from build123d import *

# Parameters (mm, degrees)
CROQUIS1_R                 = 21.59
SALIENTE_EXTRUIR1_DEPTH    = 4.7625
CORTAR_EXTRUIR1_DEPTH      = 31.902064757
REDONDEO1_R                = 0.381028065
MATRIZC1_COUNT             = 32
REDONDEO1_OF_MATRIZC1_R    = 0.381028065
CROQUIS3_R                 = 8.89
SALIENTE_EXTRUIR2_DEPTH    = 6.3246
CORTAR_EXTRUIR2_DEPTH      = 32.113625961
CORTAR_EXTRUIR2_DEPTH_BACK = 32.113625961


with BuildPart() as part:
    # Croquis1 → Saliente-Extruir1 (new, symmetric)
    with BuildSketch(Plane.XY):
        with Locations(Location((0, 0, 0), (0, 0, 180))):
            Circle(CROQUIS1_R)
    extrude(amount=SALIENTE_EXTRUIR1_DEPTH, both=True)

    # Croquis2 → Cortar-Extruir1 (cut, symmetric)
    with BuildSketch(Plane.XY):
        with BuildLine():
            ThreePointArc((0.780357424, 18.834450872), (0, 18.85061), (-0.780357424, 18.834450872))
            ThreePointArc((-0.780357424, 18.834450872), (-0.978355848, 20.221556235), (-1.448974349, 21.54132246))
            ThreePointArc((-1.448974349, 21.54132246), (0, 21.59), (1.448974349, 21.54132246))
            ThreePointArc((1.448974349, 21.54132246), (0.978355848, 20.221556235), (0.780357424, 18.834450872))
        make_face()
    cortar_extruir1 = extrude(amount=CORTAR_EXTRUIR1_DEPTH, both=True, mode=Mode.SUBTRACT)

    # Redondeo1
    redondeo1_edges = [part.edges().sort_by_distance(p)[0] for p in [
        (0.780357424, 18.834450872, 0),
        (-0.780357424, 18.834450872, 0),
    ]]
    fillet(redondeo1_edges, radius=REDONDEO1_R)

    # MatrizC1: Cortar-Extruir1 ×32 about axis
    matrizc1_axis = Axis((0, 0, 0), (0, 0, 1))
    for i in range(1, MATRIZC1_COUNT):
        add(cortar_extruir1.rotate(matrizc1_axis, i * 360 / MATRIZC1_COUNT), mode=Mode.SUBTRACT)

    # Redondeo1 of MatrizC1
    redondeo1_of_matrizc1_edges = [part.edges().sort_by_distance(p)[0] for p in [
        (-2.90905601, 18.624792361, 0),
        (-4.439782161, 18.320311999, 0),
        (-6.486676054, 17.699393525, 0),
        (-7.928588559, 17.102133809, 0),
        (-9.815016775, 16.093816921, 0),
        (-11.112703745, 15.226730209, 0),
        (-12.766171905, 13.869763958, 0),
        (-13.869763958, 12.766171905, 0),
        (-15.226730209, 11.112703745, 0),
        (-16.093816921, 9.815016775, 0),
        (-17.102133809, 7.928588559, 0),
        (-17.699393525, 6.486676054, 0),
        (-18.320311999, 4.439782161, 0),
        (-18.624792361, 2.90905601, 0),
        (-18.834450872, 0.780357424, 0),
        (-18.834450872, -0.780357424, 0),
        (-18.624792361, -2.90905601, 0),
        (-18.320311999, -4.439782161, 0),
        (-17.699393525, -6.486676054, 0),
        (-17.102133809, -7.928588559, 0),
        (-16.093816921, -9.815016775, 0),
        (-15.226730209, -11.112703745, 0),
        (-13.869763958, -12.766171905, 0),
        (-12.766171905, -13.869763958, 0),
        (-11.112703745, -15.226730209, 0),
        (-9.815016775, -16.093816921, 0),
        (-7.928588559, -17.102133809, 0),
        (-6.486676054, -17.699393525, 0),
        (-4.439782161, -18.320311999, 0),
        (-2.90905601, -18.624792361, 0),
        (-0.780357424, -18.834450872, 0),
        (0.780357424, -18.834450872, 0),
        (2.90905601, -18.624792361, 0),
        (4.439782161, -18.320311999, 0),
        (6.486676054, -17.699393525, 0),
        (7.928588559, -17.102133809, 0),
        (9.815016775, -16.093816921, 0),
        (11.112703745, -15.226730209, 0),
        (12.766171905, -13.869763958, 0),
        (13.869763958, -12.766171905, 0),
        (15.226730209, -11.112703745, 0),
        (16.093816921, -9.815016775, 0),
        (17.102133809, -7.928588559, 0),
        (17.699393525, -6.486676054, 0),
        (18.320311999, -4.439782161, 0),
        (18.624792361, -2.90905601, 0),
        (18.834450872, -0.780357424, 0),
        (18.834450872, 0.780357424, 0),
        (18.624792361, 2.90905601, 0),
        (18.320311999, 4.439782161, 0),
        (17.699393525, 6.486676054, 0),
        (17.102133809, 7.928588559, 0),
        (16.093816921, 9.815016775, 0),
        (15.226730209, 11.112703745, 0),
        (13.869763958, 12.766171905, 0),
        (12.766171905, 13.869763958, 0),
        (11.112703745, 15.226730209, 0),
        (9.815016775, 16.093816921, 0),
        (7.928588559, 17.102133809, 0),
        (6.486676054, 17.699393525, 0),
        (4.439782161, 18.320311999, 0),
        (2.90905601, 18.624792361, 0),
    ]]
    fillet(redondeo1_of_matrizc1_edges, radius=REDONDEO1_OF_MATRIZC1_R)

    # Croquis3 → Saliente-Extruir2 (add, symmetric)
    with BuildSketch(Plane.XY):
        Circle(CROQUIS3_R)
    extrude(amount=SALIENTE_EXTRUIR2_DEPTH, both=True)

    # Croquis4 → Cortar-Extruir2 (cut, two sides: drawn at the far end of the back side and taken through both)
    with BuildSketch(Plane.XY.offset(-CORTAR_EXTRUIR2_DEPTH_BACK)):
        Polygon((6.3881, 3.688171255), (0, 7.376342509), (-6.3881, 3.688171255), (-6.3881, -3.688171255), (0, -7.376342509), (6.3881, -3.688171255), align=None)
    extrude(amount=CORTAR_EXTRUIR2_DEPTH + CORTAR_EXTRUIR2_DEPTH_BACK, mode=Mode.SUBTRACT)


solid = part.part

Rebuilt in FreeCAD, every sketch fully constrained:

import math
import FreeCAD as App
import Part
import Sketcher

V = App.Vector
Q = App.Units.Quantity


def edges_at(feature, points):
    """Names of the edges that pass closest to the given points."""
    edges = feature.Shape.Edges
    near = lambda p: min(range(len(edges)), key=lambda i: edges[i].distToShape(Part.Vertex(*p))[0])
    return sorted({f"Edge{near(p) + 1}" for p in points})

doc = App.newDocument("Part")
params = doc.addObject("Spreadsheet::Sheet", "Params")
for row, (alias, value) in enumerate([
    ("sketch1_diameter", "1.7 in"),
    ("pad1_length", "0.375 in"),
    ("sketch2_radius", "0.85 in"),
    ("pocket1_length", "63.80413 mm"),
    ("fillet_radius", "0.381028 mm"),
    ("fillet2_radius", "0.381028 mm"),
    ("sketch3_diameter", "0.7 in"),
    ("pad2_length", "0.498 in"),
], start=1):
    params.set(f"A{row}", alias)
    params.set(f"B{row}", "=" + value)
    params.setAlias(f"B{row}", alias)

body = doc.addObject("PartDesign::Body", "Body")

# Sketch on XY plane
sketch1 = body.newObject("Sketcher::SketchObject", "Sketch")
sketch1.AttachmentSupport = (doc.getObject("XY_Plane"), [""])
sketch1.MapMode = "FlatFace"
sketch1.addGeometry(Part.Circle(V(0, 0, 0), V(0, 0, 1), 22), False)
sketch1.addConstraint([
    Sketcher.Constraint("Coincident", 0, 3, -1, 1),
    Sketcher.Constraint("Diameter", 0, Q("1.7 in")),
])
sketch1.setExpression("Constraints[1]", "Params.sketch1_diameter")
pad1 = body.newObject("PartDesign::Pad", "Pad")
pad1.Profile = sketch1
pad1.setExpression("Length", "Params.pad1_length")
pad1.Midplane = True

# Sketch on XY plane
sketch2 = body.newObject("Sketcher::SketchObject", "Sketch001")
sketch2.AttachmentSupport = (doc.getObject("XY_Plane"), [""])
sketch2.MapMode = "FlatFace"
sketch2.addGeometry([
    Part.ArcOfCircle(Part.Circle(V(0, 0, 0), V(0, 0, 1), 18.9), math.radians(87.63), math.radians(92.37)),
    Part.ArcOfCircle(Part.Circle(V(7.8, 18.5, 0), V(0, 0, 1), 7), math.radians(155), math.radians(178)),
    Part.ArcOfCircle(Part.Circle(V(0, 0, 0), V(0, 0, 1), 21.6), math.radians(86.15), math.radians(93.85)),
    Part.ArcOfCircle(Part.Circle(V(-7.8, 18.5, 0), V(0, 0, 1), 7), math.radians(2), math.radians(25)),
], False)
sketch2.addConstraint([
    Sketcher.Constraint("Coincident", 0, 1, 1, 2),
    Sketcher.Constraint("Coincident", 1, 1, 2, 1),
    Sketcher.Constraint("Coincident", 2, 2, 3, 2),
    Sketcher.Constraint("Coincident", 3, 1, 0, 2),
    Sketcher.Constraint("Coincident", 0, 3, -1, 1),
    Sketcher.Constraint("Coincident", 2, 3, -1, 1),
    Sketcher.Constraint("Equal", 1, 3),
    Sketcher.Constraint("Symmetric", 1, 3, 3, 3, -2),
    Sketcher.Constraint("Radius", 2, Q("0.85 in")),
    Sketcher.Constraint("Radius", 0, Q("18.85061 mm")),
    Sketcher.Constraint("Radius", 1, Q("6.991345 mm")),
    Sketcher.Constraint("DistanceX", -1, 1, 1, 3, Q("7.765709 mm")),
    Sketcher.Constraint("DistanceY", -1, 1, 1, 3, Q("18.545031 mm")),
])
sketch2.setExpression("Constraints[8]", "Params.sketch2_radius")
pocket1 = body.newObject("PartDesign::Pocket", "Pocket")
pocket1.Profile = sketch2
pocket1.setExpression("Length", "Params.pocket1_length")
pocket1.Midplane = True
doc.recompute()

fillet = body.newObject("PartDesign::Fillet", "Fillet")
fillet.Base = (pocket1, edges_at(pocket1, [(0.78, 18.834, 0), (-0.78, 18.834, 0)]))
fillet.setExpression("Radius", "Params.fillet_radius")
doc.recompute()

polarpattern = body.newObject("PartDesign::PolarPattern", "PolarPattern")
polarpattern.Originals = [pocket1]
polarpattern.Axis = (doc.getObject("Z_Axis"), [""])
polarpattern.Angle = 360
polarpattern.Occurrences = 32
body.Tip = polarpattern
doc.recompute()

fillet2 = body.newObject("PartDesign::Fillet", "Fillet001")
fillet2.Base = (polarpattern, edges_at(polarpattern, [
    (-2.909, 18.625, 0),
    (-4.44, 18.32, 0),
    (-6.487, 17.699, 0),
    (-7.929, 17.102, 0),
    (-9.815, 16.094, 0),
    (-11.113, 15.227, 0),
    (-12.766, 13.87, 0),
    (-13.87, 12.766, 0),
    (-15.227, 11.113, 0),
    (-16.094, 9.815, 0),
    (-17.102, 7.929, 0),
    (-17.699, 6.487, 0),
    (-18.32, 4.44, 0),
    (-18.625, 2.909, 0),
    (-18.834, 0.78, 0),
    (-18.834, -0.78, 0),
    (-18.625, -2.909, 0),
    (-18.32, -4.44, 0),
    (-17.699, -6.487, 0),
    (-17.102, -7.929, 0),
    (-16.094, -9.815, 0),
    (-15.227, -11.113, 0),
    (-13.87, -12.766, 0),
    (-12.766, -13.87, 0),
    (-11.113, -15.227, 0),
    (-9.815, -16.094, 0),
    (-7.929, -17.102, 0),
    (-6.487, -17.699, 0),
    (-4.44, -18.32, 0),
    (-2.909, -18.625, 0),
    (-0.78, -18.834, 0),
    (0.78, -18.834, 0),
    (2.909, -18.625, 0),
    (4.44, -18.32, 0),
    (6.487, -17.699, 0),
    (7.929, -17.102, 0),
    (9.815, -16.094, 0),
    (11.113, -15.227, 0),
    (12.766, -13.87, 0),
    (13.87, -12.766, 0),
    (15.227, -11.113, 0),
    (16.094, -9.815, 0),
    (17.102, -7.929, 0),
    (17.699, -6.487, 0),
    (18.32, -4.44, 0),
    (18.625, -2.909, 0),
    (18.834, -0.78, 0),
    (18.834, 0.78, 0),
    (18.625, 2.909, 0),
    (18.32, 4.44, 0),
    (17.699, 6.487, 0),
    (17.102, 7.929, 0),
    (16.094, 9.815, 0),
    (15.227, 11.113, 0),
    (13.87, 12.766, 0),
    (12.766, 13.87, 0),
    (11.113, 15.227, 0),
    (9.815, 16.094, 0),
    (7.929, 17.102, 0),
    (6.487, 17.699, 0),
    (4.44, 18.32, 0),
    (2.909, 18.625, 0),
]))
fillet2.setExpression("Radius", "Params.fillet2_radius")

# Sketch on XY plane
sketch3 = body.newObject("Sketcher::SketchObject", "Sketch002")
sketch3.AttachmentSupport = (doc.getObject("XY_Plane"), [""])
sketch3.MapMode = "FlatFace"
sketch3.addGeometry(Part.Circle(V(0, 0, 0), V(0, 0, 1), 9), False)
sketch3.addConstraint([
    Sketcher.Constraint("Coincident", 0, 3, -1, 1),
    Sketcher.Constraint("Diameter", 0, Q("0.7 in")),
])
sketch3.setExpression("Constraints[1]", "Params.sketch3_diameter")
pad2 = body.newObject("PartDesign::Pad", "Pad001")
pad2.Profile = sketch3
pad2.setExpression("Length", "Params.pad2_length")
pad2.Midplane = True

# Sketch on XY plane
sketch4 = body.newObject("Sketcher::SketchObject", "Sketch003")
sketch4.AttachmentSupport = (doc.getObject("XY_Plane"), [""])
sketch4.MapMode = "FlatFace"
sketch4.addGeometry([
    Part.LineSegment(V(6, 4, 0), V(0, 7, 0)),  # 0
    Part.LineSegment(V(0, 7, 0), V(-6, 4, 0)),  # 1
    Part.LineSegment(V(-6, 4, 0), V(-6, -4, 0)),  # 2
    Part.LineSegment(V(-6, -4, 0), V(0, -7, 0)),  # 3
    Part.LineSegment(V(0, -7, 0), V(6, -4, 0)),  # 4
    Part.LineSegment(V(6, -4, 0), V(6, 4, 0)),  # 5
], False)
sketch4.addConstraint([
    Sketcher.Constraint("Coincident", 0, 2, 1, 1),
    Sketcher.Constraint("Coincident", 1, 2, 2, 1),
    Sketcher.Constraint("Coincident", 2, 2, 3, 1),
    Sketcher.Constraint("Coincident", 3, 2, 4, 1),
    Sketcher.Constraint("Coincident", 4, 2, 5, 1),
    Sketcher.Constraint("Coincident", 5, 2, 0, 1),
    Sketcher.Constraint("Vertical", 2),
    Sketcher.Constraint("Vertical", 5),
    Sketcher.Constraint("Symmetric", 0, 2, 3, 2, -1, 1),
    Sketcher.Constraint("Symmetric", 1, 2, 4, 2, -1, 1),
    Sketcher.Constraint("PointOnObject", 0, 2, -2),
    Sketcher.Constraint("Parallel", 0, 3),
    Sketcher.Constraint("Horizontal", 2, 2, 4, 2),
    Sketcher.Constraint("Angle", 0, Q("150 deg")),
    Sketcher.Constraint("DistanceX", 2, 2, 4, 2, Q("0.503 in")),
    Sketcher.Constraint("DistanceY", 2, 2, 2, 1, Q("7.376343 mm")),
])
pocket2 = body.newObject("PartDesign::Pocket", "Pocket001")
pocket2.Profile = sketch4
pocket2.Type = "ThroughAll"
pocket2.Midplane = True

doc.recompute()
